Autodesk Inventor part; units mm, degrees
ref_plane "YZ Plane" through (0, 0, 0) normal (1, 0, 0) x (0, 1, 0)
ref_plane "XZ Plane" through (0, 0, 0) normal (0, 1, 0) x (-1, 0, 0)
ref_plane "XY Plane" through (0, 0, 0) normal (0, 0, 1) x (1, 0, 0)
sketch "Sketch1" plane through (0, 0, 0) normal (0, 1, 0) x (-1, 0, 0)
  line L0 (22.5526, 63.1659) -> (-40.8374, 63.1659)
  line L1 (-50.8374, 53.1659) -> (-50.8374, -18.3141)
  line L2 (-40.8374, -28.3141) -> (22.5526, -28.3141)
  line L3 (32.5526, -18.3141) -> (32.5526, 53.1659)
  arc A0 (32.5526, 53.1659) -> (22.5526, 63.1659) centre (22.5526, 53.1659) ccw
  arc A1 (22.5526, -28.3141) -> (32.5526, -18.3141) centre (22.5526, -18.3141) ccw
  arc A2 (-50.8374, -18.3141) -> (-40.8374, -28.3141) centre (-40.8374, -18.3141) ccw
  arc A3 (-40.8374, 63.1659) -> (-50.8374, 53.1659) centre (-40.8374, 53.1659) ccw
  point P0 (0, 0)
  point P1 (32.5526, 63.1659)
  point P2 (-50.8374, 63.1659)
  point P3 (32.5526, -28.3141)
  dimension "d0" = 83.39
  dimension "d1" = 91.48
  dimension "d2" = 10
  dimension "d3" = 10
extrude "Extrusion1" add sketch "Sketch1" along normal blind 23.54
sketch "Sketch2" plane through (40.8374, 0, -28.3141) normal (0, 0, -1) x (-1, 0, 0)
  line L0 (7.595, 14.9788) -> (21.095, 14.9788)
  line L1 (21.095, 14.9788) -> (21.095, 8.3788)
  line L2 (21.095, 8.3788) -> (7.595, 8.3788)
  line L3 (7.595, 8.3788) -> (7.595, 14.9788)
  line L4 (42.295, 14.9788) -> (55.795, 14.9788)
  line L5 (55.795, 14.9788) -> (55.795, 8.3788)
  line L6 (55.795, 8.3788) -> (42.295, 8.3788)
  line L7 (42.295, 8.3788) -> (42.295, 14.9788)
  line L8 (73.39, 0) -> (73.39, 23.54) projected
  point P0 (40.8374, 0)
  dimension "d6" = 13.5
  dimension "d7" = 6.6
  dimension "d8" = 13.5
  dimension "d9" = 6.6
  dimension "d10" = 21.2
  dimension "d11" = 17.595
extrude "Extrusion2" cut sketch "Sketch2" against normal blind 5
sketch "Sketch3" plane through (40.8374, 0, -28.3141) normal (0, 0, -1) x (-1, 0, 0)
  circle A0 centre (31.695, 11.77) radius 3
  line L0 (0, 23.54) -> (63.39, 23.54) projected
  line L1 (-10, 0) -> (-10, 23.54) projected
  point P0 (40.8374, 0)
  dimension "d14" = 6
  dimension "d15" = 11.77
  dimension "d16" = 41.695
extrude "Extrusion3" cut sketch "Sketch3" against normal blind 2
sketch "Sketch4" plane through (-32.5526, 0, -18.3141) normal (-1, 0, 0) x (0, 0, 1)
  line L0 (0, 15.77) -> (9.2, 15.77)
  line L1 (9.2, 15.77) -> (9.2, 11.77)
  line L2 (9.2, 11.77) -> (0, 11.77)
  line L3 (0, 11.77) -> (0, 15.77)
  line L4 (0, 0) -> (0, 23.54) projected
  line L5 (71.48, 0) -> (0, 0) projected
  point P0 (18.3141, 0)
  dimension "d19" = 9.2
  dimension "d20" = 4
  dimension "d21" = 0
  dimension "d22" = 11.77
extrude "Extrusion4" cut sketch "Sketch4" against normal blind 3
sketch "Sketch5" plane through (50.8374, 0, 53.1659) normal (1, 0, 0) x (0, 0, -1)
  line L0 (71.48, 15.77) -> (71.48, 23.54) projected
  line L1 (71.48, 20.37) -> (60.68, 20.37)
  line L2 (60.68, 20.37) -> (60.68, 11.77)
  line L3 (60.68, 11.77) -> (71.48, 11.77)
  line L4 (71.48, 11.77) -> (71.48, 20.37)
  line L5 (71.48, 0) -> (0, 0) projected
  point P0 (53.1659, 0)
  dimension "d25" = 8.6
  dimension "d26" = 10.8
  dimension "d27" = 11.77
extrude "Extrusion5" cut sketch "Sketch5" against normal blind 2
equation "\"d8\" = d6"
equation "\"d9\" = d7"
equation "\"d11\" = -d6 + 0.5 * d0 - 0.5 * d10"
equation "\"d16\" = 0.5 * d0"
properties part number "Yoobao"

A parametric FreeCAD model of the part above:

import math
import FreeCAD as App
import Part
import Sketcher
from FreeCAD import Vector


def add_polygon(sketch, points):
    """Adds a closed chain of lines whose ends are joined by coincident constraints."""
    first, n = sketch.GeometryCount, len(points)
    for a, b in zip(points, points[1:] + points[:1]):
        sketch.addGeometry(Part.LineSegment(App.Vector(*a, 0), App.Vector(*b, 0)), False)
    for i in range(n):
        sketch.addConstraint(Sketcher.Constraint("Coincident", first + i, 2, first + (i + 1) % n, 1))

doc = App.newDocument("Part")
body = doc.addObject("PartDesign::Body", "Body")

# Sketch on XZ plane
sketch1 = doc.addObject("Sketcher::SketchObject", "Sketch")
body.addObject(sketch1)
sketch1.AttachmentSupport = (doc.XZ_Plane, [""])
sketch1.MapMode = "FlatFace"
sketch1.addGeometry([
    Part.ArcOfCircle(Part.Circle(Vector(-22.5526, 53.1659, 0), Vector(0, 0, 1), 10), math.radians(90), math.radians(180)),  # 0
    Part.LineSegment(Vector(-22.5526, 63.1659, 0), Vector(40.8374, 63.1659, 0)),  # 1
    Part.ArcOfCircle(Part.Circle(Vector(40.8374, 53.1659, 0), Vector(0, 0, 1), 10), math.radians(0), math.radians(90)),  # 2
    Part.LineSegment(Vector(50.8374, 53.1659, 0), Vector(50.8374, -18.3141, 0)),  # 3
    Part.ArcOfCircle(Part.Circle(Vector(40.8374, -18.3141, 0), Vector(0, 0, 1), 10), math.radians(-90), math.radians(0)),  # 4
    Part.LineSegment(Vector(40.8374, -28.3141, 0), Vector(-22.5526, -28.3141, 0)),  # 5
    Part.ArcOfCircle(Part.Circle(Vector(-22.5526, -18.3141, 0), Vector(0, 0, 1), 10), math.radians(180), math.radians(270)),  # 6
    Part.LineSegment(Vector(-32.5526, -18.3141, 0), Vector(-32.5526, 53.1659, 0)),  # 7
], False)
sketch1.addConstraint([
    Sketcher.Constraint("Tangent", 0, 1, 1, 1),
    Sketcher.Constraint("Tangent", 1, 2, 2, 2),
    Sketcher.Constraint("Tangent", 2, 1, 3, 1),
    Sketcher.Constraint("Tangent", 3, 2, 4, 2),
    Sketcher.Constraint("Tangent", 4, 1, 5, 1),
    Sketcher.Constraint("Tangent", 5, 2, 6, 2),
    Sketcher.Constraint("Tangent", 6, 1, 7, 1),
    Sketcher.Constraint("Tangent", 7, 2, 0, 2),
    Sketcher.Constraint("Horizontal", 1),
    Sketcher.Constraint("Vertical", 3),
    Sketcher.Constraint("Horizontal", 5),
    Sketcher.Constraint("Vertical", 7),
    Sketcher.Constraint("Equal", 0, 2),
    Sketcher.Constraint("Equal", 2, 4),
    Sketcher.Constraint("Equal", 4, 6),
    Sketcher.Constraint("Radius", 0, 10.0),
    Sketcher.Constraint("DistanceX", 1, 1, 1, 2, 63.39),
    Sketcher.Constraint("DistanceY", 3, 2, 3, 1, 71.48),
    Sketcher.Constraint("DistanceY", -1, 1, 0, 3, 53.166),
    Sketcher.Constraint("DistanceX", 0, 3, -1, 1, 22.5526),
])
pad1 = doc.addObject("PartDesign::Pad", "Pad")
body.addObject(pad1)
pad1.Profile = sketch1
pad1.Length = 23.54
pad1.Reversed = True

# Sketch on XY plane
sketch2 = doc.addObject("Sketcher::SketchObject", "Sketch001")
body.addObject(sketch2)
sketch2.AttachmentSupport = (doc.XY_Plane, [""])
sketch2.MapMode = "FlatFace"
sketch2.AttachmentOffset = App.Placement(Vector(0, 0, -28.3141), App.Rotation())
add_polygon(sketch2, [(19.7424, 14.9788), (33.2424, 14.9788), (33.2424, 8.3788), (19.7424, 8.3788)])  # lines 0-3
add_polygon(sketch2, [(-14.9576, 14.9788), (-1.4576, 14.9788), (-1.4576, 8.3788), (-14.9576, 8.3788)])  # lines 4-7
sketch2.addConstraint([
    Sketcher.Constraint("Horizontal", 0),
    Sketcher.Constraint("Vertical", 1),
    Sketcher.Constraint("Horizontal", 2),
    Sketcher.Constraint("Vertical", 3),
    Sketcher.Constraint("Horizontal", 4),
    Sketcher.Constraint("Vertical", 5),
    Sketcher.Constraint("Horizontal", 6),
    Sketcher.Constraint("Vertical", 7),
    Sketcher.Constraint("Horizontal", 3, 2, 4, 2),
    Sketcher.Constraint("Horizontal", 2, 2, 5, 2),
    Sketcher.Constraint("Equal", 2, 4),
    Sketcher.Constraint("DistanceX", 0, 1, 0, 2, 13.5),
    Sketcher.Constraint("DistanceY", 1, 2, 1, 1, 6.6),
    Sketcher.Constraint("DistanceX", 4, 2, 3, 2, 21.2),
    Sketcher.Constraint("DistanceX", -1, 1, 0, 2, 33.2424),
    Sketcher.Constraint("DistanceY", -1, 1, 0, 2, 14.9788),
])
pocket1 = doc.addObject("PartDesign::Pocket", "Pocket")
body.addObject(pocket1)
pocket1.Profile = sketch2
pocket1.Length = 5
pocket1.Reversed = True

# Sketch on XY plane
sketch3 = doc.addObject("Sketcher::SketchObject", "Sketch002")
body.addObject(sketch3)
sketch3.AttachmentSupport = (doc.XY_Plane, [""])
sketch3.MapMode = "FlatFace"
sketch3.AttachmentOffset = App.Placement(Vector(0, 0, -28.3141), App.Rotation())
sketch3.addGeometry(Part.Circle(Vector(9.1424, 11.77, 0), Vector(0, 0, 1), 3), False)
sketch3.addConstraint([
    Sketcher.Constraint("Diameter", 0, 6.0),
    Sketcher.Constraint("DistanceY", -1, 1, 0, 3, 11.77),
    Sketcher.Constraint("DistanceX", -1, 1, 0, 3, 9.1424),
])
pocket2 = doc.addObject("PartDesign::Pocket", "Pocket001")
body.addObject(pocket2)
pocket2.Profile = sketch3
pocket2.Length = 2
pocket2.Reversed = True

# Sketch on YZ plane
sketch4 = doc.addObject("Sketcher::SketchObject", "Sketch003")
body.addObject(sketch4)
sketch4.AttachmentSupport = (doc.YZ_Plane, [""])
sketch4.MapMode = "FlatFace"
sketch4.AttachmentOffset = App.Placement(Vector(0, 0, -32.5526), App.Rotation())
add_polygon(sketch4, [(15.77, -9.1141), (15.77, -18.3141), (11.77, -18.3141), (11.77, -9.1141)])  # lines 0-3
sketch4.addConstraint([
    Sketcher.Constraint("Vertical", 0),
    Sketcher.Constraint("Horizontal", 1),
    Sketcher.Constraint("Vertical", 2),
    Sketcher.Constraint("Horizontal", 3),
    Sketcher.Constraint("DistanceX", 1, 2, 1, 1, 4.0),
    Sketcher.Constraint("DistanceY", 0, 2, 0, 1, 9.2),
    Sketcher.Constraint("DistanceX", -1, 1, 1, 2, 11.77),
    Sketcher.Constraint("DistanceY", 0, 2, -1, 1, 18.314),
])
pocket3 = doc.addObject("PartDesign::Pocket", "Pocket002")
body.addObject(pocket3)
pocket3.Profile = sketch4
pocket3.Length = 3
pocket3.Reversed = True

# Sketch on YZ plane
sketch5 = doc.addObject("Sketcher::SketchObject", "Sketch004")
body.addObject(sketch5)
sketch5.AttachmentSupport = (doc.YZ_Plane, [""])
sketch5.MapMode = "FlatFace"
sketch5.AttachmentOffset = App.Placement(Vector(0, 0, 50.8374), App.Rotation())
add_polygon(sketch5, [(11.77, -18.3141), (20.37, -18.3141), (20.37, -7.5141), (11.77, -7.5141)])  # lines 0-3
sketch5.addConstraint([
    Sketcher.Constraint("Horizontal", 0),
    Sketcher.Constraint("Vertical", 1),
    Sketcher.Constraint("Horizontal", 2),
    Sketcher.Constraint("Vertical", 3),
    Sketcher.Constraint("DistanceX", 0, 1, 0, 2, 8.6),
    Sketcher.Constraint("DistanceY", 1, 1, 1, 2, 10.8),
    Sketcher.Constraint("DistanceX", -1, 1, 2, 2, 11.77),
    Sketcher.Constraint("DistanceY", 0, 2, -1, 1, 18.314),
])
pocket4 = doc.addObject("PartDesign::Pocket", "Pocket003")
body.addObject(pocket4)
pocket4.Profile = sketch5
pocket4.Length = 2

doc.recompute()
